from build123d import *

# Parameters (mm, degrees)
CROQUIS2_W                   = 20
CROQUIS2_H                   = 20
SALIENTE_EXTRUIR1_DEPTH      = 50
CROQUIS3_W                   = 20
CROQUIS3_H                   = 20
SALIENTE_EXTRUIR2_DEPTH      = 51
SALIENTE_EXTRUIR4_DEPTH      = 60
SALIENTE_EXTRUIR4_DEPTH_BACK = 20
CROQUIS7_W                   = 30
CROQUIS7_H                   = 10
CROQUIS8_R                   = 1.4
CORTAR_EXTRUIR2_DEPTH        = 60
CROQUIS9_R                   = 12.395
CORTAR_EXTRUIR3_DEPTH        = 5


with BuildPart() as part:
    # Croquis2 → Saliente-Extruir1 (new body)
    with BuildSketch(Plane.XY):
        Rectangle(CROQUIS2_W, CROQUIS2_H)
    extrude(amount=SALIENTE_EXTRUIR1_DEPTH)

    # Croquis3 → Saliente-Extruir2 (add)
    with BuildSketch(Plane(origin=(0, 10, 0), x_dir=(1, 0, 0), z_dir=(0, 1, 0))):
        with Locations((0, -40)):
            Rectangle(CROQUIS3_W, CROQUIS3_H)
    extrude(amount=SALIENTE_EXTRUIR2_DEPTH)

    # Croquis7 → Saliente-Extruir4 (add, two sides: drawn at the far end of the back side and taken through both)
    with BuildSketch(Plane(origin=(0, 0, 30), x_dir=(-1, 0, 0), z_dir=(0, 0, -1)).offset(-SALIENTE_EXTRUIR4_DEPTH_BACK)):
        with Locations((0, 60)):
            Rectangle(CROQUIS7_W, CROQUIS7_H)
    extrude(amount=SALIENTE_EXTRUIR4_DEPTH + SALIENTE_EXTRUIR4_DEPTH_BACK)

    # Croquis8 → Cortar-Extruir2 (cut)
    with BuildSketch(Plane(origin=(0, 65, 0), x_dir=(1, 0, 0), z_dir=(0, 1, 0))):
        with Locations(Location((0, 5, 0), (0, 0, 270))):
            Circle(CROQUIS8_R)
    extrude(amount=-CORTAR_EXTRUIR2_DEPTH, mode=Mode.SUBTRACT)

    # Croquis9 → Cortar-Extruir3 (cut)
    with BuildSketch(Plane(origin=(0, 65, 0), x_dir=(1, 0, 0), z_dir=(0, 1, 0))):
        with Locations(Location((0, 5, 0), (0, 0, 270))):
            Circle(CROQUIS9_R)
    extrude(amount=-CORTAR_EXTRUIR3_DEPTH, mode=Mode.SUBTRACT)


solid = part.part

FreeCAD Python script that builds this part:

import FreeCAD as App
import Part
import Sketcher
from FreeCAD import Vector
Q = App.Units.Quantity

doc = App.newDocument("Part")
body = doc.addObject("PartDesign::Body", "Body")

sketch1 = body.newObject("Sketcher::SketchObject", "Sketch")
sketch1.AttachmentSupport = (doc.getObject("XY_Plane"), [""])
sketch1.MapMode = "FlatFace"
sketch1.addGeometry([
    Part.LineSegment(Vector(-10, 10, 0), Vector(-10, -10, 0)),
    Part.LineSegment(Vector(-10, -10, 0), Vector(10, -10, 0)),
    Part.LineSegment(Vector(10, -10, 0), Vector(10, 10, 0)),
    Part.LineSegment(Vector(10, 10, 0), Vector(-10, 10, 0)),
], False)
sketch1.addConstraint([
    Sketcher.Constraint("Coincident", 0, 2, 1, 1),
    Sketcher.Constraint("Coincident", 1, 2, 2, 1),
    Sketcher.Constraint("Coincident", 2, 2, 3, 1),
    Sketcher.Constraint("Coincident", 3, 2, 0, 1),
    Sketcher.Constraint("Vertical", 0),
    Sketcher.Constraint("Horizontal", 1),
    Sketcher.Constraint("Vertical", 2),
    Sketcher.Constraint("Horizontal", 3),
    Sketcher.Constraint("Symmetric", 0, 2, 2, 2, -1, 1),
    Sketcher.Constraint("Equal", 3, 0),
    Sketcher.Constraint("DistanceX", 1, 1, 1, 2, Q("20 mm")),
])
pad1 = body.newObject("PartDesign::Pad", "Pad")
pad1.Profile = sketch1
pad1.Length = 50

sketch2 = body.newObject("Sketcher::SketchObject", "Sketch001")
sketch2.AttachmentSupport = (doc.getObject("XZ_Plane"), [""])
sketch2.MapMode = "FlatFace"
sketch2.AttachmentOffset = App.Placement(Vector(0, 0, -10), App.Rotation())
sketch2.addGeometry([
    Part.LineSegment(Vector(-10, 30, 0), Vector(-10, 50, 0)),
    Part.LineSegment(Vector(-10, 50, 0), Vector(10, 50, 0)),
    Part.LineSegment(Vector(10, 50, 0), Vector(10, 30, 0)),
    Part.LineSegment(Vector(10, 30, 0), Vector(-10, 30, 0)),
], False)
sketch2.addConstraint([
    Sketcher.Constraint("Coincident", 0, 2, 1, 1),
    Sketcher.Constraint("Coincident", 1, 2, 2, 1),
    Sketcher.Constraint("Coincident", 2, 2, 3, 1),
    Sketcher.Constraint("Coincident", 3, 2, 0, 1),
    Sketcher.Constraint("Vertical", 0),
    Sketcher.Constraint("Horizontal", 1),
    Sketcher.Constraint("Vertical", 2),
    Sketcher.Constraint("Horizontal", 3),
    Sketcher.Constraint("Equal", 3, 0),
    Sketcher.Constraint("DistanceX", 1, 1, 1, 2, Q("20 mm")),
    Sketcher.Constraint("DistanceX", 0, 2, -1, 1, Q("10 mm")),
    Sketcher.Constraint("DistanceY", -1, 1, 0, 2, Q("50 mm")),
])
pad2 = body.newObject("PartDesign::Pad", "Pad001")
pad2.Profile = sketch2
pad2.Length = 51
pad2.Reversed = True

sketch3 = body.newObject("Sketcher::SketchObject", "Sketch002")
sketch3.AttachmentSupport = (doc.getObject("XY_Plane"), [""])
sketch3.MapMode = "FlatFace"
sketch3.AttachmentOffset = App.Placement(Vector(0, 0, 30), App.Rotation())
sketch3.addGeometry([
    Part.LineSegment(Vector(15, 65, 0), Vector(15, 55, 0)),
    Part.LineSegment(Vector(15, 55, 0), Vector(-15, 55, 0)),
    Part.LineSegment(Vector(-15, 55, 0), Vector(-15, 65, 0)),
    Part.LineSegment(Vector(-15, 65, 0), Vector(15, 65, 0)),
], False)
sketch3.addConstraint([
    Sketcher.Constraint("Coincident", 0, 2, 1, 1),
    Sketcher.Constraint("Coincident", 1, 2, 2, 1),
    Sketcher.Constraint("Coincident", 2, 2, 3, 1),
    Sketcher.Constraint("Coincident", 3, 2, 0, 1),
    Sketcher.Constraint("Vertical", 0),
    Sketcher.Constraint("Horizontal", 1),
    Sketcher.Constraint("Vertical", 2),
    Sketcher.Constraint("Horizontal", 3),
    Sketcher.Constraint("DistanceX", 1, 2, 1, 1, Q("30 mm")),
    Sketcher.Constraint("DistanceY", 0, 2, 0, 1, Q("10 mm")),
    Sketcher.Constraint("DistanceX", -1, 1, 0, 2, Q("15 mm")),
    Sketcher.Constraint("DistanceY", -1, 1, 0, 2, Q("55 mm")),
])
pad3 = body.newObject("PartDesign::Pad", "Pad002")
pad3.Profile = sketch3
pad3.Type = "TwoLengths"
pad3.Length = 60
pad3.Length2 = 20
pad3.Reversed = True

sketch4 = body.newObject("Sketcher::SketchObject", "Sketch003")
sketch4.AttachmentSupport = (doc.getObject("XZ_Plane"), [""])
sketch4.MapMode = "FlatFace"
sketch4.AttachmentOffset = App.Placement(Vector(0, 0, -65), App.Rotation())
sketch4.addGeometry(Part.Circle(Vector(0, -5, 0), Vector(0, 0, 1), 1.4), False)
sketch4.addConstraint([
    Sketcher.Constraint("PointOnObject", 0, 3, -2),
    Sketcher.Constraint("Diameter", 0, Q("2.8 mm")),
    Sketcher.Constraint("DistanceY", 0, 3, -1, 1, Q("5 mm")),
])
pocket1 = body.newObject("PartDesign::Pocket", "Pocket")
pocket1.Profile = sketch4
pocket1.Length = 60
pocket1.Reversed = True

sketch5 = body.newObject("Sketcher::SketchObject", "Sketch004")
sketch5.AttachmentSupport = (doc.getObject("XZ_Plane"), [""])
sketch5.MapMode = "FlatFace"
sketch5.AttachmentOffset = App.Placement(Vector(0, 0, -65), App.Rotation())
sketch5.addGeometry(Part.Circle(Vector(0, -5, 0), Vector(0, 0, 1), 12), False)
sketch5.addConstraint([
    Sketcher.Constraint("PointOnObject", 0, 3, -2),
    Sketcher.Constraint("Diameter", 0, Q("24.79 mm")),
    Sketcher.Constraint("DistanceY", 0, 3, -1, 1, Q("5 mm")),
])
pocket2 = body.newObject("PartDesign::Pocket", "Pocket001")
pocket2.Profile = sketch5
pocket2.Length = 5
pocket2.Reversed = True

doc.recompute()
